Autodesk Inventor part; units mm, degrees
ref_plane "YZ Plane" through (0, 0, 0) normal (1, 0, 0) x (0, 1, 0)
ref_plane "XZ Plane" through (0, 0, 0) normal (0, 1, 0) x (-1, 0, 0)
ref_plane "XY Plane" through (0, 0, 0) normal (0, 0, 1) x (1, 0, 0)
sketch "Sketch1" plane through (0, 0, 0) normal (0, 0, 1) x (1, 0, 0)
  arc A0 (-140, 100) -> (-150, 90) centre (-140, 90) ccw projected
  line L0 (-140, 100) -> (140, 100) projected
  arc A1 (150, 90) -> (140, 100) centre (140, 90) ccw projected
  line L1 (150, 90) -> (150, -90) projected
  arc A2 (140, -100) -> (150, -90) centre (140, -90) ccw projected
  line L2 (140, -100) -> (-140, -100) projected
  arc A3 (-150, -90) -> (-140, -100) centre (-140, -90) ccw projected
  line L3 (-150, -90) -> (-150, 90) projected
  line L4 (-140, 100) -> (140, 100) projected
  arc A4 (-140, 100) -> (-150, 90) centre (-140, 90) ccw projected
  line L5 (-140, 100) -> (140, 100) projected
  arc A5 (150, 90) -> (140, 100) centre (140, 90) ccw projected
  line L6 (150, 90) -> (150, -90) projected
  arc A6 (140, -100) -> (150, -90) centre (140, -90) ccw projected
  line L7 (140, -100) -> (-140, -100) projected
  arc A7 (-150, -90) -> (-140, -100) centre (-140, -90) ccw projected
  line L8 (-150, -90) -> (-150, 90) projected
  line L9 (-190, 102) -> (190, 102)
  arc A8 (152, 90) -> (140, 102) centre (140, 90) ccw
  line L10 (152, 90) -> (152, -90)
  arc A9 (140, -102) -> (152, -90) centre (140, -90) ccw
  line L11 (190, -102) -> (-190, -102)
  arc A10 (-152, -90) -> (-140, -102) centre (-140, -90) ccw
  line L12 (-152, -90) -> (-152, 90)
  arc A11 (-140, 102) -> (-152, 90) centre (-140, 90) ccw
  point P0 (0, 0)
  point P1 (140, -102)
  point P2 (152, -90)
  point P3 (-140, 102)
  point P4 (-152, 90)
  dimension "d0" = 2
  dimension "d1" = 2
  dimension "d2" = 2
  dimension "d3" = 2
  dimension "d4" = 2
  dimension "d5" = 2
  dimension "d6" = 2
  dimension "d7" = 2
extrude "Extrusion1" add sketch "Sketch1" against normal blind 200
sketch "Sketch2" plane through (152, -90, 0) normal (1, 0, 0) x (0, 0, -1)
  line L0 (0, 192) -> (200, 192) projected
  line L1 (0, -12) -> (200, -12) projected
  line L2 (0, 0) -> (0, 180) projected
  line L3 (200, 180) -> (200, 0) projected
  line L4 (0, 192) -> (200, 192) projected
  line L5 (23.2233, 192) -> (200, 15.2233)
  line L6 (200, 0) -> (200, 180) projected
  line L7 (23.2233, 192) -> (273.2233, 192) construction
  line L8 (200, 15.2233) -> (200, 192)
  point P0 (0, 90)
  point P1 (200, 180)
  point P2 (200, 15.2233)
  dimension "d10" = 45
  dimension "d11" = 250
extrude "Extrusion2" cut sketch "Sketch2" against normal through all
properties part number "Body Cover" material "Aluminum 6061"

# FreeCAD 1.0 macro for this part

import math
import FreeCAD as App
import Part
import Sketcher
from FreeCAD import Vector
Q = App.Units.Quantity

doc = App.newDocument("Part")
body = doc.addObject("PartDesign::Body", "Body")

# Sketch on XY plane
sketch1 = doc.addObject("Sketcher::SketchObject", "Sketch")
body.addObject(sketch1)
sketch1.AttachmentSupport = (doc.XY_Plane, [""])
sketch1.MapMode = "FlatFace"
sketch1.addGeometry([
    Part.LineSegment(Vector(140, 102, 0), Vector(-140, 102, 0)),  # 0
    Part.ArcOfCircle(Part.Circle(Vector(-140, 90, 0), Vector(0, 0, 1), 12), math.radians(90), math.radians(180)),  # 1
    Part.LineSegment(Vector(-152, 90, 0), Vector(-152, -90, 0)),  # 2
    Part.ArcOfCircle(Part.Circle(Vector(-140, -90, 0), Vector(0, 0, 1), 12), math.radians(180), math.radians(270)),  # 3
    Part.LineSegment(Vector(-140, -102, 0), Vector(140, -102, 0)),  # 4
    Part.ArcOfCircle(Part.Circle(Vector(140, -90, 0), Vector(0, 0, 1), 12), math.radians(-90), math.radians(0)),  # 5
    Part.LineSegment(Vector(152, -90, 0), Vector(152, 90, 0)),  # 6
    Part.ArcOfCircle(Part.Circle(Vector(140, 90, 0), Vector(0, 0, 1), 12), math.radians(0), math.radians(90)),  # 7
    Part.ArcOfCircle(Part.Circle(Vector(-140, 90, 0), Vector(0, 0, 1), 10), math.radians(90), math.radians(180)),  # 8
    Part.LineSegment(Vector(-140, 100, 0), Vector(140, 100, 0)),  # 9
    Part.ArcOfCircle(Part.Circle(Vector(140, 90, 0), Vector(0, 0, 1), 10), math.radians(0), math.radians(90)),  # 10
    Part.LineSegment(Vector(150, 90, 0), Vector(150, -90, 0)),  # 11
    Part.ArcOfCircle(Part.Circle(Vector(140, -90, 0), Vector(0, 0, 1), 10), math.radians(-90), math.radians(0)),  # 12
    Part.LineSegment(Vector(140, -100, 0), Vector(-140, -100, 0)),  # 13
    Part.ArcOfCircle(Part.Circle(Vector(-140, -90, 0), Vector(0, 0, 1), 10), math.radians(180), math.radians(270)),  # 14
    Part.LineSegment(Vector(-150, -90, 0), Vector(-150, 90, 0)),  # 15
], False)
sketch1.addConstraint([
    Sketcher.Constraint("Tangent", 0, 2, 1, 1),
    Sketcher.Constraint("Tangent", 1, 2, 2, 1),
    Sketcher.Constraint("Tangent", 2, 2, 3, 1),
    Sketcher.Constraint("Tangent", 3, 2, 4, 1),
    Sketcher.Constraint("Tangent", 4, 2, 5, 1),
    Sketcher.Constraint("Tangent", 5, 2, 6, 1),
    Sketcher.Constraint("Tangent", 6, 2, 7, 1),
    Sketcher.Constraint("Tangent", 7, 2, 0, 1),
    Sketcher.Constraint("Tangent", 8, 1, 9, 1),
    Sketcher.Constraint("Tangent", 9, 2, 10, 2),
    Sketcher.Constraint("Tangent", 10, 1, 11, 1),
    Sketcher.Constraint("Tangent", 11, 2, 12, 2),
    Sketcher.Constraint("Tangent", 12, 1, 13, 1),
    Sketcher.Constraint("Tangent", 13, 2, 14, 2),
    Sketcher.Constraint("Tangent", 14, 1, 15, 1),
    Sketcher.Constraint("Tangent", 15, 2, 8, 2),
    Sketcher.Constraint("Horizontal", 0),
    Sketcher.Constraint("Vertical", 2),
    Sketcher.Constraint("Horizontal", 4),
    Sketcher.Constraint("Vertical", 6),
    Sketcher.Constraint("Horizontal", 9),
    Sketcher.Constraint("Vertical", 11),
    Sketcher.Constraint("Horizontal", 13),
    Sketcher.Constraint("Vertical", 15),
    Sketcher.Constraint("Coincident", 8, 3, 1, 3),
    Sketcher.Constraint("Coincident", 10, 3, 7, 3),
    Sketcher.Constraint("Coincident", 12, 3, 5, 3),
    Sketcher.Constraint("Equal", 1, 3),
    Sketcher.Constraint("Equal", 3, 5),
    Sketcher.Constraint("Equal", 5, 7),
    Sketcher.Constraint("Equal", 12, 14),
    Sketcher.Constraint("Symmetric", 1, 3, 5, 3, -1, 1),
    Sketcher.Constraint("Radius", 1, Q("12 mm")),
    Sketcher.Constraint("Radius", 8, Q("10 mm")),
    Sketcher.Constraint("DistanceX", 0, 2, 0, 1, Q("280 mm")),
    Sketcher.Constraint("DistanceY", 2, 2, 2, 1, Q("180 mm")),
])
pad1 = doc.addObject("PartDesign::Pad", "Pad")
body.addObject(pad1)
pad1.Profile = sketch1
pad1.Length = 200
pad1.Reversed = True

# Sketch on YZ plane
sketch2 = doc.addObject("Sketcher::SketchObject", "Sketch001")
body.addObject(sketch2)
sketch2.AttachmentSupport = (doc.YZ_Plane, [""])
sketch2.MapMode = "FlatFace"
sketch2.AttachmentOffset = App.Placement(Vector(0, 0, 152), App.Rotation())
sketch2.addGeometry([
    Part.LineSegment(Vector(102, -200, 0), Vector(102, -23.2233, 0)),
    Part.LineSegment(Vector(102, -23.2233, 0), Vector(-74.7767, -200, 0)),
    Part.LineSegment(Vector(-74.7767, -200, 0), Vector(102, -200, 0)),
], False)
sketch2.addConstraint([
    Sketcher.Constraint("Coincident", 0, 2, 1, 1),
    Sketcher.Constraint("Coincident", 1, 2, 2, 1),
    Sketcher.Constraint("Coincident", 2, 2, 0, 1),
    Sketcher.Constraint("Vertical", 0),
    Sketcher.Constraint("Horizontal", 2),
    Sketcher.Constraint("Equal", 2, 0),
    Sketcher.Constraint("Distance", 1, Q("250 mm")),
    Sketcher.Constraint("DistanceX", -1, 1, 0, 2, Q("102 mm")),
    Sketcher.Constraint("DistanceY", 1, 2, -1, 1, Q("200 mm")),
])
pocket1 = doc.addObject("PartDesign::Pocket", "Pocket")
body.addObject(pocket1)
pocket1.Profile = sketch2
pocket1.Type = "ThroughAll"

doc.recompute()
